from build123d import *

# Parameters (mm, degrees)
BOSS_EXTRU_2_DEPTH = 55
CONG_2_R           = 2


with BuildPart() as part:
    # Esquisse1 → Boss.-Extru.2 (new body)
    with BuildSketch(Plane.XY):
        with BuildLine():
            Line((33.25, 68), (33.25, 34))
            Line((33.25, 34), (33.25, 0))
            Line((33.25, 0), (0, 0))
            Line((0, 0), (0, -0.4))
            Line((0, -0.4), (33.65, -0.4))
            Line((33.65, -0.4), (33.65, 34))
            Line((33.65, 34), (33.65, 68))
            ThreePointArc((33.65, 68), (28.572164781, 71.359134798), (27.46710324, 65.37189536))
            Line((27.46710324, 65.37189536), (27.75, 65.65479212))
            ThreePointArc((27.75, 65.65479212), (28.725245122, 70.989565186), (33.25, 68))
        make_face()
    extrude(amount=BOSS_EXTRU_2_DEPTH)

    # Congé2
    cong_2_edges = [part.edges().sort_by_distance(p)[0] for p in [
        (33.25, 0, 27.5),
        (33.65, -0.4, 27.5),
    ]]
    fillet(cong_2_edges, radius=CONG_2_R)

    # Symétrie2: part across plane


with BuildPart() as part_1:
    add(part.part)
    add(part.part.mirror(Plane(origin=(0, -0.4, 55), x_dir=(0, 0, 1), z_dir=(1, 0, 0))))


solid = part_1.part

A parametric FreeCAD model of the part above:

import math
import FreeCAD as App
import Part
import Sketcher
Q = App.Units.Quantity


def edges_at(feature, points):
    """Names of the edges that pass closest to the given points."""
    edges = feature.Shape.Edges
    near = lambda p: min(range(len(edges)), key=lambda i: edges[i].distToShape(Part.Vertex(*p))[0])
    return sorted({f"Edge{near(p) + 1}" for p in points})

doc = App.newDocument("Part")
params = doc.addObject("Spreadsheet::Sheet", "Params")
for row, (alias, value) in enumerate([
    ("sketch1_height", "68 mm"),
    ("sketch1_radius", "3.65 mm"),
    ("sketch1_radius2", "3.25 mm"),
    ("sketch1_height2", "0.4 mm"),
    ("pad1_length", "55 mm"),
    ("fillet_radius", "2 mm"),
], start=1):
    params.set(f"A{row}", alias)
    params.set(f"B{row}", "=" + value)
    params.setAlias(f"B{row}", alias)

body = doc.addObject("PartDesign::Body", "Body")

sketch1 = body.newObject("Sketcher::SketchObject", "Sketch")
sketch1.AttachmentSupport = (doc.getObject("XY_Plane"), [""])
sketch1.MapMode = "FlatFace"
sketch1.addGeometry([
    Part.LineSegment(App.Vector(33.25, 68, 0), App.Vector(33.25, 0, 0)),
    Part.LineSegment(App.Vector(33.25, 0, 0), App.Vector(0, 0, 0)),
    Part.LineSegment(App.Vector(0, 0, 0), App.Vector(0, -0.4, 0)),
    Part.LineSegment(App.Vector(0, -0.4, 0), App.Vector(33.65, -0.4, 0)),
    Part.LineSegment(App.Vector(33.65, -0.4, 0), App.Vector(33.65, 68, 0)),
    Part.ArcOfCircle(Part.Circle(App.Vector(30, 68, 0), App.Vector(0, 0, 1), 3.65), math.radians(0), math.radians(226)),
    Part.LineSegment(App.Vector(27.47, 65.37, 0), App.Vector(27.75, 65.65, 0)),
    Part.ArcOfCircle(Part.Circle(App.Vector(30, 68, 0), App.Vector(0, 0, 1), 3.25), math.radians(0), math.radians(226)),
], False)
sketch1.addConstraint([
    Sketcher.Constraint("Coincident", 0, 2, 1, 1),
    Sketcher.Constraint("Coincident", 1, 2, 2, 1),
    Sketcher.Constraint("Coincident", 2, 2, 3, 1),
    Sketcher.Constraint("Coincident", 3, 2, 4, 1),
    Sketcher.Constraint("Tangent", 4, 2, 5, 1),
    Sketcher.Constraint("Coincident", 5, 2, 6, 1),
    Sketcher.Constraint("Coincident", 6, 2, 7, 2),
    Sketcher.Constraint("Tangent", 7, 1, 0, 1),
    Sketcher.Constraint("Vertical", 0),
    Sketcher.Constraint("Horizontal", 1),
    Sketcher.Constraint("Vertical", 2),
    Sketcher.Constraint("Horizontal", 3),
    Sketcher.Constraint("Vertical", 4),
    Sketcher.Constraint("Coincident", 1, 2, -1, 1),
    Sketcher.Constraint("Coincident", 7, 3, 5, 3),
    Sketcher.Constraint("DistanceY", 0, 2, 0, 1, 68.0),
    Sketcher.Constraint("Angle", 6, Q("45 deg")),
    Sketcher.Constraint("Radius", 5, 3.65),
    Sketcher.Constraint("Radius", 7, 3.25),
    Sketcher.Constraint("DistanceY", 2, 2, 2, 1, 0.4),
    Sketcher.Constraint("DistanceX", -1, 1, 5, 3, 30.0),
    Sketcher.Constraint("DistanceX", 6, 2, 4, 2, 5.9),
])
sketch1.setExpression("Constraints[15]", "Params.sketch1_height")
sketch1.setExpression("Constraints[17]", "Params.sketch1_radius")
sketch1.setExpression("Constraints[18]", "Params.sketch1_radius2")
sketch1.setExpression("Constraints[19]", "Params.sketch1_height2")
pad1 = body.newObject("PartDesign::Pad", "Pad")
pad1.Profile = sketch1
pad1.setExpression("Length", "Params.pad1_length")
doc.recompute()

fillet = body.newObject("PartDesign::Fillet", "Fillet")
fillet.Base = (pad1, edges_at(pad1, [(33.25, 0, 27.5), (33.65, -0.4, 27.5)]))
fillet.setExpression("Radius", "Params.fillet_radius")
body2 = doc.addObject("PartDesign::Body", "Body001")
doc.recompute()

body2.BaseFeature = body
doc.recompute()

mirroring = doc.addObject("Part::Mirroring", "Mirroring")
mirroring.Source = body
mirroring.Base = App.Vector(0, -0.4, 55)
mirroring.Normal = App.Vector(1, 0, 0)
body3 = doc.addObject("PartDesign::Body", "Body002")
body3.BaseFeature = mirroring
boolean = body2.newObject("PartDesign::Boolean", "Boolean")
boolean.Type = "Fuse"
boolean.addObjects([body3])
doc.recompute()
mirroring.Visibility = False

doc.recompute()
